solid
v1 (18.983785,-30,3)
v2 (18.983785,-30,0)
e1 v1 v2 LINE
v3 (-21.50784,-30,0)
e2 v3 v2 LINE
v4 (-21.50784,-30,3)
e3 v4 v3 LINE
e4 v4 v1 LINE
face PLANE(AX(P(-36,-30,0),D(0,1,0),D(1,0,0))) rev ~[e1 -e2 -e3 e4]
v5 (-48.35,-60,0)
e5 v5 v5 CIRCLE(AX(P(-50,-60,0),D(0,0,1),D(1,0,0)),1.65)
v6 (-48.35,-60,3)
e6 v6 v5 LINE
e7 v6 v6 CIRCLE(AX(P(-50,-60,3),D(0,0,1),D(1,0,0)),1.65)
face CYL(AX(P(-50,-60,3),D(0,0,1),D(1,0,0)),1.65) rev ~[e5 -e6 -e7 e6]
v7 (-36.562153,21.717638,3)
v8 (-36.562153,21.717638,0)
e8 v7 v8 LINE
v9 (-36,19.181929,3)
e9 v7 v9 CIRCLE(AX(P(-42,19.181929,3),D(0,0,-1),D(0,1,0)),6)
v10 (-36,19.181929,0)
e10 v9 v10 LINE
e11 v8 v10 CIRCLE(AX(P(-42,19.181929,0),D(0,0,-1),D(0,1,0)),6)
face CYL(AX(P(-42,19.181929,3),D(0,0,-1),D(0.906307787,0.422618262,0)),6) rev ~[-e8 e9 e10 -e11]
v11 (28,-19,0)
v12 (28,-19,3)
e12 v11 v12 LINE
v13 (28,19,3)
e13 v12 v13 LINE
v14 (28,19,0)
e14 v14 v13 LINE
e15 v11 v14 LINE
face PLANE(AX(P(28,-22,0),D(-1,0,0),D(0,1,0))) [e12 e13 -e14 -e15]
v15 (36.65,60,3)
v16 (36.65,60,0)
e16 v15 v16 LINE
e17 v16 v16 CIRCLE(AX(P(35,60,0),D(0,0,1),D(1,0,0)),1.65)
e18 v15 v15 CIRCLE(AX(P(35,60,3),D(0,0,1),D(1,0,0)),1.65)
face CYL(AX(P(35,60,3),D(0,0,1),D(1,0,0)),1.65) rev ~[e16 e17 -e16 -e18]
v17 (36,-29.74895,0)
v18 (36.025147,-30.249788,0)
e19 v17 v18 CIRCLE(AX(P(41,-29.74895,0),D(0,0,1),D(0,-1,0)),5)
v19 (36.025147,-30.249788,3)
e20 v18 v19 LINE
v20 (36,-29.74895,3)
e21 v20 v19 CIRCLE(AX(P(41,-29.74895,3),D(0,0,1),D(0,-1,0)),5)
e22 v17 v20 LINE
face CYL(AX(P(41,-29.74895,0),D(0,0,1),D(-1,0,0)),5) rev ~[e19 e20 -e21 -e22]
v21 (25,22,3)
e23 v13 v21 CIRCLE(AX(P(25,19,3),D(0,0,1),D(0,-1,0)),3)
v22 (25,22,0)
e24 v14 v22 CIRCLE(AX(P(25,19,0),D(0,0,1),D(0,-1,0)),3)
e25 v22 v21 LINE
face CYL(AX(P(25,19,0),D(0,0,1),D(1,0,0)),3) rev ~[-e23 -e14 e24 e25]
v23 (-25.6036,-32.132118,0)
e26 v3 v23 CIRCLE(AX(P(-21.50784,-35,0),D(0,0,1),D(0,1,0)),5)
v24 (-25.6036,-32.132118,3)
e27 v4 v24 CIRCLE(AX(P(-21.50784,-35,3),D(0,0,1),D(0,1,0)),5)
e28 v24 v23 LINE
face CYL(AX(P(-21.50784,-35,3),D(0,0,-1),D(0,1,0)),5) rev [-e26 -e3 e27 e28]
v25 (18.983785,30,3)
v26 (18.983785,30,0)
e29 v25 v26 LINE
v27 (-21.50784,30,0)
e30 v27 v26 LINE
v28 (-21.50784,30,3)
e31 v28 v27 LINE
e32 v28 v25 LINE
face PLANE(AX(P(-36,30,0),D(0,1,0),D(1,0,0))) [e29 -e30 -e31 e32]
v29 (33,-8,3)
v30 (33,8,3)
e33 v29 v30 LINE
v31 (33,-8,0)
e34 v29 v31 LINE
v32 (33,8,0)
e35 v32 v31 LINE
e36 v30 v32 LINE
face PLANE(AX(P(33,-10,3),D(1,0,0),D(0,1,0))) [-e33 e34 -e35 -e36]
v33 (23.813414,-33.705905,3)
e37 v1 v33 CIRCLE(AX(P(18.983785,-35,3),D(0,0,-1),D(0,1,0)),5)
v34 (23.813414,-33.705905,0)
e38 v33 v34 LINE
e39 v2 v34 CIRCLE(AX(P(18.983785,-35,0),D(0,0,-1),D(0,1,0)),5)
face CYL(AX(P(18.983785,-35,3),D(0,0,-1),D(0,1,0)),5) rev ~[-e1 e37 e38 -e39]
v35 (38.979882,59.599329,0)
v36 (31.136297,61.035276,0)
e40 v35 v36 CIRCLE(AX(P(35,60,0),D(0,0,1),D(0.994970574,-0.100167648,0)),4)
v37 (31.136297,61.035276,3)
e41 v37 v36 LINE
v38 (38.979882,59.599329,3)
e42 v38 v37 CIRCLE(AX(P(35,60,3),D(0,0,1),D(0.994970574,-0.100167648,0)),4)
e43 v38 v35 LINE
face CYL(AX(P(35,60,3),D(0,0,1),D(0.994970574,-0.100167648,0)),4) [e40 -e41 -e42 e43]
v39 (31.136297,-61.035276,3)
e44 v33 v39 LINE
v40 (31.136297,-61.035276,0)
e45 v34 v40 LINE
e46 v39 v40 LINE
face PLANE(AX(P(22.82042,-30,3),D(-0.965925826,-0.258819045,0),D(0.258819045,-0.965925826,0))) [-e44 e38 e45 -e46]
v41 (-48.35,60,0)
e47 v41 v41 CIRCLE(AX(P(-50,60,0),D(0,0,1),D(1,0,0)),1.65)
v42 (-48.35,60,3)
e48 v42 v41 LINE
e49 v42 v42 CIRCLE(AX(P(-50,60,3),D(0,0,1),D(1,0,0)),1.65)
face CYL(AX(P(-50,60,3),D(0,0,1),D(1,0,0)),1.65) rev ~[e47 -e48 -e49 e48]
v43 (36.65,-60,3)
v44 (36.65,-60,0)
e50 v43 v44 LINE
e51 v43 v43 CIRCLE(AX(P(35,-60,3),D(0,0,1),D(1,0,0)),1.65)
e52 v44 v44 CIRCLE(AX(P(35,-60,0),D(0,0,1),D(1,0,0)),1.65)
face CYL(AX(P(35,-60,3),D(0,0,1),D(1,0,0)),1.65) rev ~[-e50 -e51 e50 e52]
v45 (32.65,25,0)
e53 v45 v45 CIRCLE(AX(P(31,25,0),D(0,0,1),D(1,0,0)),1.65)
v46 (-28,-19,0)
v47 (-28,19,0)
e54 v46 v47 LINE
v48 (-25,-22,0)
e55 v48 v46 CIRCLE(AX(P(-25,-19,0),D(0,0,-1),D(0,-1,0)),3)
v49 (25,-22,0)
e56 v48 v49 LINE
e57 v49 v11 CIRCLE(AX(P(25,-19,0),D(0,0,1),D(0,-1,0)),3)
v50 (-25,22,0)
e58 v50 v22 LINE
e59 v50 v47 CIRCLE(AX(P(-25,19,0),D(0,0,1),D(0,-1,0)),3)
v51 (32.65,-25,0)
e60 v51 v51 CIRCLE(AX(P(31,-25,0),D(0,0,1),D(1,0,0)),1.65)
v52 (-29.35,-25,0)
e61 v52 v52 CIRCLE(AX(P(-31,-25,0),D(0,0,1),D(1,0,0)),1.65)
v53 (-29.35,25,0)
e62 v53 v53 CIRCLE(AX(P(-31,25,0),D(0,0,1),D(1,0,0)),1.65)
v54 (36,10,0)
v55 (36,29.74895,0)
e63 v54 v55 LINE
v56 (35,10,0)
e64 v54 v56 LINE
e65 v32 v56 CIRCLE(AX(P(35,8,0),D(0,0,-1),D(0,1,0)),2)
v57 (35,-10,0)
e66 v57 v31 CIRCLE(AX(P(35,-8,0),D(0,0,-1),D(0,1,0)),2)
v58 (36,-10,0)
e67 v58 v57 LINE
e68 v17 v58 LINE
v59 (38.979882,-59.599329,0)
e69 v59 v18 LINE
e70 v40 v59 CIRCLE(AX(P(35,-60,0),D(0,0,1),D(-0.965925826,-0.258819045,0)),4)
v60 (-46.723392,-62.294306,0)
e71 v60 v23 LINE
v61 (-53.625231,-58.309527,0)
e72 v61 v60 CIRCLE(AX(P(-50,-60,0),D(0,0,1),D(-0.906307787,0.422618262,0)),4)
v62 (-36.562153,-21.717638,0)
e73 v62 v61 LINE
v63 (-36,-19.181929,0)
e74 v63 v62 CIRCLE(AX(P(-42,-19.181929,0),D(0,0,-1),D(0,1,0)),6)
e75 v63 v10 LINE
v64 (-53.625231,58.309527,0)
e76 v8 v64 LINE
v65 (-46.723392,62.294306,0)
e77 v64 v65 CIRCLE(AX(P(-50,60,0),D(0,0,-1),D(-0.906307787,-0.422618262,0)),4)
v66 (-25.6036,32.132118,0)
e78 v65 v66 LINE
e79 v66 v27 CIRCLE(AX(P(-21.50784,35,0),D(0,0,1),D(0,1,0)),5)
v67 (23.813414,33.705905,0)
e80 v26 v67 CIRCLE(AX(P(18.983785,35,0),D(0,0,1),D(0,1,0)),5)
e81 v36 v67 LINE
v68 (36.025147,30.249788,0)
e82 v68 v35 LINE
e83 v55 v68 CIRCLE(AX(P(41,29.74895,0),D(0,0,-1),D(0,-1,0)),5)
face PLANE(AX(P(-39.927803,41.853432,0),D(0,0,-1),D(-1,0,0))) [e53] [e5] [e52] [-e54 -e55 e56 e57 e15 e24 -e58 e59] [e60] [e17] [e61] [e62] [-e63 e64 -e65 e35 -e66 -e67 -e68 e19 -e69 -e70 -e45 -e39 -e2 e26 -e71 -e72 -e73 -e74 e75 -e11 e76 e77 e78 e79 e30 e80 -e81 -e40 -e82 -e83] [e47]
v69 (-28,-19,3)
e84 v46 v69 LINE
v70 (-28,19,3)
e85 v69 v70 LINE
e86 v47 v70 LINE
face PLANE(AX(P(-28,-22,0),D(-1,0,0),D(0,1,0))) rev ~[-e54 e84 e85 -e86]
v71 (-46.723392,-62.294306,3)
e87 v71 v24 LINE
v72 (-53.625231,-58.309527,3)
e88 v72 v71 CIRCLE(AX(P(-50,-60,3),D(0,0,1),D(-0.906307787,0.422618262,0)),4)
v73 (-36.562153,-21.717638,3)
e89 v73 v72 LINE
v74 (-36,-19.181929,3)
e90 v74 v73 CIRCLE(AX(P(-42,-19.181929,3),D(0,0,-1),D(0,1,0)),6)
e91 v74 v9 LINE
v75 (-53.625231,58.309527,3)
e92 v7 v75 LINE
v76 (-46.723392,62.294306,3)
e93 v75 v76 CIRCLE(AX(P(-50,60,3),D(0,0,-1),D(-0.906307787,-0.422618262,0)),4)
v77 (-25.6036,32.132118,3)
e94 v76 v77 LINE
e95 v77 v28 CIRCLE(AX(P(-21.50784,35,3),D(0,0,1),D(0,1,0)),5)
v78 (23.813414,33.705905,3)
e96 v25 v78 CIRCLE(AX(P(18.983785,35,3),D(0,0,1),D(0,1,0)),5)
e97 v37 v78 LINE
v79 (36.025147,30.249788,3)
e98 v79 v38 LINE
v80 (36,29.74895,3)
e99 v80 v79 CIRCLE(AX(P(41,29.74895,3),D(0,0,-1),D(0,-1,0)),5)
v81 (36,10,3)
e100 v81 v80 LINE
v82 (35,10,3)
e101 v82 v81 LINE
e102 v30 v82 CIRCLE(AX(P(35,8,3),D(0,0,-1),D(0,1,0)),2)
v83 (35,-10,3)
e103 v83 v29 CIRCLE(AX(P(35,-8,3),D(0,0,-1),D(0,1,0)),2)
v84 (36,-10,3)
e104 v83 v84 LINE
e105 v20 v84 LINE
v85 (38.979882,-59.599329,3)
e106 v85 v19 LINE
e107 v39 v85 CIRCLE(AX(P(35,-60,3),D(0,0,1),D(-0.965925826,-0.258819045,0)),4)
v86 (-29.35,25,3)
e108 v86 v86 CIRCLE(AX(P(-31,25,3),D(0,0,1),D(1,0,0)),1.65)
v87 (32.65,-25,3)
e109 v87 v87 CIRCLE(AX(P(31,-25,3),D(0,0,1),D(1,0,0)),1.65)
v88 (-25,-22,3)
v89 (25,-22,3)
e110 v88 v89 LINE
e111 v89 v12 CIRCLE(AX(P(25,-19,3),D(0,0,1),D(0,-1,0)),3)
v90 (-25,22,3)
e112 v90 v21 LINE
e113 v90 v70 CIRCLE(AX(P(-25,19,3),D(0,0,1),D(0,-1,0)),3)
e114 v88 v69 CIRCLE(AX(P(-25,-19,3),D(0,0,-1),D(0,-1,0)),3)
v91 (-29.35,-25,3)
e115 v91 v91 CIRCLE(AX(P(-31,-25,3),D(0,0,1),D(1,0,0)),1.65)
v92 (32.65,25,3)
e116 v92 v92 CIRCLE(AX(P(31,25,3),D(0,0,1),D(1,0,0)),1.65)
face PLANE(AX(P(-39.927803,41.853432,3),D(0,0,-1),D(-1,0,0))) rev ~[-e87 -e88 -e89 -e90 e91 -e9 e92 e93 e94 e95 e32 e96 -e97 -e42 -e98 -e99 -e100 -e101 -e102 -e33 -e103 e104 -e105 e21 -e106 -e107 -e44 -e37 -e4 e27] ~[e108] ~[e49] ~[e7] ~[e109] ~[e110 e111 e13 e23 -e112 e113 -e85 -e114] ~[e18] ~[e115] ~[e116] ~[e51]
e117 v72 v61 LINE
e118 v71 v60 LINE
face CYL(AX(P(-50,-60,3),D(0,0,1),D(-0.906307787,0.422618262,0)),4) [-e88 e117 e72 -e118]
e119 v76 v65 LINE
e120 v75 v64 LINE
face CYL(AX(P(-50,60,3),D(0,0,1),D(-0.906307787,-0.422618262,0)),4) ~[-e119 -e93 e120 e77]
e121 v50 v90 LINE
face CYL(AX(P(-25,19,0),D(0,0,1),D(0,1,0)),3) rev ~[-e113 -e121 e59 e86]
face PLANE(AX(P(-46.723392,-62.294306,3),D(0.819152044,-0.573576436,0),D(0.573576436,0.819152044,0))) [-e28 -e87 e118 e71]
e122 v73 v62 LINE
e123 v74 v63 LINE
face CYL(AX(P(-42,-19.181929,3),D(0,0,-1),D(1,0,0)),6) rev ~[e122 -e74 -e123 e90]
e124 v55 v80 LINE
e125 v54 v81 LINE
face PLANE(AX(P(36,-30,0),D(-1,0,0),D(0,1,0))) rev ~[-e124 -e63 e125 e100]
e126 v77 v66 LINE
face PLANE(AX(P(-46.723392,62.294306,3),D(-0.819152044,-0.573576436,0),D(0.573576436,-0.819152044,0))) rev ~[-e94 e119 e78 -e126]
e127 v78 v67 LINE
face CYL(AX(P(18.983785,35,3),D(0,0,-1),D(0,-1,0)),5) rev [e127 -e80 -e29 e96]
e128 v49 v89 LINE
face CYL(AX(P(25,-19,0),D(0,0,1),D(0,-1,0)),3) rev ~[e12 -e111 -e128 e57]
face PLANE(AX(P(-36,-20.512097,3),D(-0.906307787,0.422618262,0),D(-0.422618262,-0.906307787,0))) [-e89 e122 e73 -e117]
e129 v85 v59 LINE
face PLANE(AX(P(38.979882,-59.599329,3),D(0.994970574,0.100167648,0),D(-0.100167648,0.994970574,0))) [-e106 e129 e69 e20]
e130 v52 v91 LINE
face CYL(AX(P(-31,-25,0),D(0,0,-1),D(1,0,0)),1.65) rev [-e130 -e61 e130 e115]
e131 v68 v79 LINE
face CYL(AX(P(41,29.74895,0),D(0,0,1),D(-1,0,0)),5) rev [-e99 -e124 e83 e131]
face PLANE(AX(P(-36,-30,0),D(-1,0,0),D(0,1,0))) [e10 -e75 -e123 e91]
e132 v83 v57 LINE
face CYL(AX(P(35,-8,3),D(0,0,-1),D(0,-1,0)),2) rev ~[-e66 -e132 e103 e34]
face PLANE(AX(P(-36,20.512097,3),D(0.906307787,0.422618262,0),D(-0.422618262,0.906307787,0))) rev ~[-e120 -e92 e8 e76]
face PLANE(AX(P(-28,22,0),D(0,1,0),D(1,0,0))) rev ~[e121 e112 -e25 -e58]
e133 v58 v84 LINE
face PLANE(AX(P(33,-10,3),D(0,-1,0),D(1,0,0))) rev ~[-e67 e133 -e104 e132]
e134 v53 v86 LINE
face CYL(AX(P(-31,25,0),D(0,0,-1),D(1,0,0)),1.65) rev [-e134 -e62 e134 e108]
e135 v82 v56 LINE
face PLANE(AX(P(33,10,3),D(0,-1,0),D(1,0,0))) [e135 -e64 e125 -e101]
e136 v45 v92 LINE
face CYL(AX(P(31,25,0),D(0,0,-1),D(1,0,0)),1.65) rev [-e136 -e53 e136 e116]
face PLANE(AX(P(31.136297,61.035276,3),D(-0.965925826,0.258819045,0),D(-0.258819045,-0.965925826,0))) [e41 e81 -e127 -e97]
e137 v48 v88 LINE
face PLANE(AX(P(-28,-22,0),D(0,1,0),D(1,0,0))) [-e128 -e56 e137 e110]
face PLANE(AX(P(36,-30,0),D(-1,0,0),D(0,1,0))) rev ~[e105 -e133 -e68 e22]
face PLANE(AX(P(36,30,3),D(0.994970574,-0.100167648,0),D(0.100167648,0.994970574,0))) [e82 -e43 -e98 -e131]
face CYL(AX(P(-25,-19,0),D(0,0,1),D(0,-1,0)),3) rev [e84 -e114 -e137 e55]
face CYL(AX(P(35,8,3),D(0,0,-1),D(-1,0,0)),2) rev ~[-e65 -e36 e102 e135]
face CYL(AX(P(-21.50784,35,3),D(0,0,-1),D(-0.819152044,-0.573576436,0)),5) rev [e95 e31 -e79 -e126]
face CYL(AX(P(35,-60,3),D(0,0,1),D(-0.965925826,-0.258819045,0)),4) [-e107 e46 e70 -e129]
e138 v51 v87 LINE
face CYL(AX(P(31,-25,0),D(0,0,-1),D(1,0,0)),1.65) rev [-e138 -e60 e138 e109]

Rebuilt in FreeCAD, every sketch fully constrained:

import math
import FreeCAD as App
import Part
import Sketcher

V = App.Vector
Q = App.Units.Quantity


def edges_at(feature, points):
    """Names of the edges that pass closest to the given points."""
    edges = feature.Shape.Edges
    near = lambda p: min(range(len(edges)), key=lambda i: edges[i].distToShape(Part.Vertex(*p))[0])
    return sorted({f"Edge{near(p) + 1}" for p in points})


def add_polygon(sketch, points):
    """Adds a closed chain of lines whose ends are joined by coincident constraints."""
    first, n = sketch.GeometryCount, len(points)
    for a, b in zip(points, points[1:] + points[:1]):
        sketch.addGeometry(Part.LineSegment(App.Vector(*a, 0), App.Vector(*b, 0)), False)
    for i in range(n):
        sketch.addConstraint(Sketcher.Constraint("Coincident", first + i, 2, first + (i + 1) % n, 1))

doc = App.newDocument("Part")
params = doc.addObject("Spreadsheet::Sheet", "Params")
for row, (alias, value) in enumerate([
    ("sketch1_diameter", "3.3 mm"),
    ("sketch1_width", "72 mm"),
    ("sketch1_width2", "56 mm"),
    ("sketch1_height", "60 mm"),
    ("sketch1_height2", "44 mm"),
    ("pad1_length", "3 mm"),
    ("fillet_radius", "3 mm"),
    ("sketch2_radius", "4 mm"),
    ("sketch2_diameter", "3.3 mm"),
    ("pad2_length", "3 mm"),
    ("fillet2_radius", "5 mm"),
    ("fillet3_radius", "6 mm"),
    ("sketch3_width", "6 mm"),
    ("sketch3_height", "20 mm"),
    ("fillet4_radius", "2 mm"),
], start=1):
    params.set(f"A{row}", alias)
    params.set(f"B{row}", "=" + value)
    params.setAlias(f"B{row}", alias)

body = doc.addObject("PartDesign::Body", "Body")

# Sketch on XY plane
sketch1 = body.newObject("Sketcher::SketchObject", "Sketch")
sketch1.AttachmentSupport = (doc.getObject("XY_Plane"), [""])
sketch1.MapMode = "FlatFace"
add_polygon(sketch1, [(-36, 30), (-36, -30), (36, -30), (36, 30)])  # lines 0-3
sketch1.addGeometry(Part.Circle(V(-31, -25, 0), V(0, 0, 1), 1.65), False)  # 4
sketch1.addGeometry(Part.Circle(V(31, -25, 0), V(0, 0, 1), 1.65), False)  # 5
sketch1.addGeometry(Part.Circle(V(-31, 25, 0), V(0, 0, 1), 1.65), False)  # 6
add_polygon(sketch1, [(28, -22), (-28, -22), (-28, 22), (28, 22)])  # lines 7-10
sketch1.addGeometry(Part.Circle(V(31, 25, 0), V(0, 0, 1), 1.65), False)  # 11
sketch1.addConstraint([
    Sketcher.Constraint("Vertical", 0),
    Sketcher.Constraint("Horizontal", 1),
    Sketcher.Constraint("Vertical", 2),
    Sketcher.Constraint("Horizontal", 3),
    Sketcher.Constraint("Horizontal", 7),
    Sketcher.Constraint("Vertical", 8),
    Sketcher.Constraint("Horizontal", 9),
    Sketcher.Constraint("Vertical", 10),
    Sketcher.Constraint("Equal", 4, 5),
    Sketcher.Constraint("Equal", 5, 6),
    Sketcher.Constraint("Equal", 6, 11),
    Sketcher.Constraint("Symmetric", 5, 3, 6, 3, -1, 1),
    Sketcher.Constraint("Symmetric", 4, 3, 11, 3, -1, 1),
    Sketcher.Constraint("Symmetric", 0, 2, 2, 2, -1, 1),
    Sketcher.Constraint("Symmetric", 7, 2, 9, 2, -1, 1),
    Sketcher.Constraint("Symmetric", 4, 3, 5, 3, -2),
    Sketcher.Constraint("Diameter", 4, 3.3),
    Sketcher.Constraint("DistanceX", 1, 1, 1, 2, 72.0),
    Sketcher.Constraint("DistanceX", 7, 2, 7, 1, 56.0),
    Sketcher.Constraint("DistanceY", 0, 2, 0, 1, 60.0),
    Sketcher.Constraint("DistanceY", 8, 1, 8, 2, 44.0),
    Sketcher.Constraint("DistanceX", 4, 3, -1, 1, 31.0),
    Sketcher.Constraint("DistanceY", 4, 3, -1, 1, 25.0),
])
sketch1.setExpression("Constraints[24]", "Params.sketch1_diameter")
sketch1.setExpression("Constraints[25]", "Params.sketch1_width")
sketch1.setExpression("Constraints[26]", "Params.sketch1_width2")
sketch1.setExpression("Constraints[27]", "Params.sketch1_height")
sketch1.setExpression("Constraints[28]", "Params.sketch1_height2")
pad1 = body.newObject("PartDesign::Pad", "Pad")
pad1.Profile = sketch1
pad1.setExpression("Length", "Params.pad1_length")
doc.recompute()

fillet = body.newObject("PartDesign::Fillet", "Fillet")
fillet.Base = (pad1, edges_at(pad1, [
    (-28, 22, 1.5),
    (-28, -22, 1.5),
    (28, -22, 1.5),
    (28, 22, 1.5),
]))
fillet.setExpression("Radius", "Params.fillet_radius")

# Sketch on XY plane
sketch2 = body.newObject("Sketcher::SketchObject", "Sketch001")
sketch2.AttachmentSupport = (doc.getObject("XY_Plane"), [""])
sketch2.MapMode = "FlatFace"
sketch2.AttachmentOffset = App.Placement(V(0, 0, 3), App.Rotation())
sketch2.addGeometry([
    Part.LineSegment(V(-24.110675, 30, 0), V(-46.723392, 62.294306, 0)),  # 0
    Part.ArcOfCircle(Part.Circle(V(-50, 60, 0), V(0, 0, 1), 4), math.radians(35), math.radians(205)),  # 1
    Part.LineSegment(V(-53.625231, 58.309527, 0), V(-36, 20.512097, 0)),  # 2
    Part.LineSegment(V(-36, 20.512097, 0), V(-36, 30, 0)),  # 3
    Part.LineSegment(V(-36, 30, 0), V(-24.110675, 30, 0)),  # 4
    Part.Circle(V(-50, 60, 0), V(0, 0, 1), 1.65),  # 5
    Part.LineSegment(V(-46.723392, -62.294306, 0), V(-24.110675, -30, 0)),  # 6
    Part.LineSegment(V(-24.110675, -30, 0), V(-36, -30, 0)),  # 7
    Part.LineSegment(V(-36, -30, 0), V(-36, -20.512097, 0)),  # 8
    Part.LineSegment(V(-36, -20.512097, 0), V(-53.625231, -58.309527, 0)),  # 9
    Part.ArcOfCircle(Part.Circle(V(-50, -60, 0), V(0, 0, 1), 4), math.radians(155), math.radians(325)),  # 10
    Part.Circle(V(-50, -60, 0), V(0, 0, 1), 1.65),  # 11
    Part.LineSegment(V(31.136297, 61.035276, 0), V(22.82042, 30, 0)),  # 12
    Part.LineSegment(V(22.82042, 30, 0), V(36, 30, 0)),  # 13
    Part.LineSegment(V(36, 30, 0), V(38.979882, 59.599329, 0)),  # 14
    Part.ArcOfCircle(Part.Circle(V(35, 60, 0), V(0, 0, 1), 4), math.radians(-5.748824), math.radians(165)),  # 15
    Part.Circle(V(35, 60, 0), V(0, 0, 1), 1.65),  # 16
    Part.LineSegment(V(38.979882, -59.599329, 0), V(36, -30, 0)),  # 17
    Part.LineSegment(V(36, -30, 0), V(22.82042, -30, 0)),  # 18
    Part.LineSegment(V(22.82042, -30, 0), V(31.136297, -61.035276, 0)),  # 19
    Part.ArcOfCircle(Part.Circle(V(35, -60, 0), V(0, 0, 1), 4), math.radians(-165), math.radians(5.748824)),  # 20
    Part.Circle(V(35, -60, 0), V(0, 0, 1), 1.65),  # 21
], False)
sketch2.addConstraint([
    Sketcher.Constraint("Tangent", 0, 2, 1, 1),
    Sketcher.Constraint("Tangent", 1, 2, 2, 1),
    Sketcher.Constraint("Coincident", 2, 2, 3, 1),
    Sketcher.Constraint("Coincident", 3, 2, 4, 1),
    Sketcher.Constraint("Coincident", 4, 2, 0, 1),
    Sketcher.Constraint("Coincident", 6, 2, 7, 1),
    Sketcher.Constraint("Coincident", 7, 2, 8, 1),
    Sketcher.Constraint("Coincident", 8, 2, 9, 1),
    Sketcher.Constraint("Tangent", 9, 2, 10, 1),
    Sketcher.Constraint("Tangent", 10, 2, 6, 1),
    Sketcher.Constraint("Coincident", 12, 2, 13, 1),
    Sketcher.Constraint("Coincident", 13, 2, 14, 1),
    Sketcher.Constraint("Tangent", 14, 2, 15, 1),
    Sketcher.Constraint("Tangent", 15, 2, 12, 1),
    Sketcher.Constraint("Coincident", 17, 2, 18, 1),
    Sketcher.Constraint("Coincident", 18, 2, 19, 1),
    Sketcher.Constraint("Tangent", 19, 2, 20, 1),
    Sketcher.Constraint("Tangent", 20, 2, 17, 1),
    Sketcher.Constraint("Vertical", 3),
    Sketcher.Constraint("Horizontal", 4),
    Sketcher.Constraint("Horizontal", 7),
    Sketcher.Constraint("Vertical", 8),
    Sketcher.Constraint("Horizontal", 13),
    Sketcher.Constraint("Horizontal", 18),
    Sketcher.Constraint("Coincident", 5, 3, 1, 3),
    Sketcher.Constraint("Coincident", 11, 3, 10, 3),
    Sketcher.Constraint("Coincident", 16, 3, 15, 3),
    Sketcher.Constraint("Coincident", 21, 3, 20, 3),
    Sketcher.Constraint("Equal", 1, 10),
    Sketcher.Constraint("Equal", 5, 11),
    Sketcher.Constraint("Equal", 10, 15),
    Sketcher.Constraint("Equal", 11, 16),
    Sketcher.Constraint("Equal", 15, 20),
    Sketcher.Constraint("Equal", 16, 21),
    Sketcher.Constraint("Symmetric", 7, 2, 13, 2, -1, 1),
    Sketcher.Constraint("Symmetric", 3, 2, 17, 2, -1, 1),
    Sketcher.Constraint("Symmetric", 3, 2, 13, 2, -2),
    Sketcher.Constraint("Symmetric", 1, 3, 10, 3, -1),
    Sketcher.Constraint("Symmetric", 15, 3, 20, 3, -1),
    Sketcher.Constraint("Horizontal", 5, 3, 15, 3),
    Sketcher.Constraint("Vertical", 4, 2, 6, 2),
    Sketcher.Constraint("Vertical", 1, 2, 9, 2),
    Sketcher.Constraint("Vertical", 12, 2, 18, 2),
    Sketcher.Constraint("Radius", 1, 4.0),
    Sketcher.Constraint("Diameter", 5, 3.3),
    Sketcher.Constraint("Angle", 0, Q("125 deg")),
    Sketcher.Constraint("Angle", 2, Q("-65 deg")),
    Sketcher.Constraint("Angle", 12, Q("-105 deg")),
    Sketcher.Constraint("DistanceX", 1, 3, -1, 1, 50.0),
    Sketcher.Constraint("DistanceY", -1, 1, 1, 3, 60.0),
    Sketcher.Constraint("DistanceX", -1, 1, 15, 3, 35.0),
    Sketcher.Constraint("DistanceX", 2, 2, -1, 1, 36.0),
    Sketcher.Constraint("DistanceY", -1, 1, 3, 2, 30.0),
])
sketch2.setExpression("Constraints[43]", "Params.sketch2_radius")
sketch2.setExpression("Constraints[44]", "Params.sketch2_diameter")
pad2 = body.newObject("PartDesign::Pad", "Pad001")
pad2.Profile = sketch2
pad2.setExpression("Length", "Params.pad2_length")
pad2.Reversed = True
doc.recompute()

fillet2 = body.newObject("PartDesign::Fillet", "Fillet001")
fillet2.Base = (pad2, edges_at(pad2, [
    (22.82, -30, 1.5),
    (22.82, 30, 1.5),
    (-24.111, 30, 1.5),
    (36, 30, 1.5),
    (36, -30, 1.5),
    (-24.111, -30, 1.5),
]))
fillet2.setExpression("Radius", "Params.fillet2_radius")
doc.recompute()

fillet3 = body.newObject("PartDesign::Fillet", "Fillet002")
fillet3.Base = (fillet2, edges_at(fillet2, [(-36, 20.512, 1.5), (-36, -20.512, 1.5)]))
fillet3.setExpression("Radius", "Params.fillet3_radius")

# Sketch on XY plane
sketch3 = body.newObject("Sketcher::SketchObject", "Sketch002")
sketch3.AttachmentSupport = (doc.getObject("XY_Plane"), [""])
sketch3.MapMode = "FlatFace"
sketch3.AttachmentOffset = App.Placement(V(0, 0, 3), App.Rotation())
add_polygon(sketch3, [(33, 10), (33, -10), (39, -10), (39, 10)])  # lines 0-3
sketch3.addConstraint([
    Sketcher.Constraint("Vertical", 0),
    Sketcher.Constraint("Horizontal", 1),
    Sketcher.Constraint("Vertical", 2),
    Sketcher.Constraint("Horizontal", 3),
    Sketcher.Constraint("DistanceX", 1, 1, 1, 2, 6.0),
    Sketcher.Constraint("DistanceY", 0, 2, 0, 1, 20.0),
    Sketcher.Constraint("DistanceX", -1, 1, 0, 2, 33.0),
    Sketcher.Constraint("DistanceY", 0, 2, -1, 1, 10.0),
])
sketch3.setExpression("Constraints[8]", "Params.sketch3_width")
sketch3.setExpression("Constraints[9]", "Params.sketch3_height")
pocket1 = body.newObject("PartDesign::Pocket", "Pocket")
pocket1.Profile = sketch3
pocket1.Type = "ThroughAll"
doc.recompute()

fillet4 = body.newObject("PartDesign::Fillet", "Fillet003")
fillet4.Base = (pocket1, edges_at(pocket1, [(33, 10, 1.5), (33, -10, 1.5)]))
fillet4.setExpression("Radius", "Params.fillet4_radius")

doc.recompute()
